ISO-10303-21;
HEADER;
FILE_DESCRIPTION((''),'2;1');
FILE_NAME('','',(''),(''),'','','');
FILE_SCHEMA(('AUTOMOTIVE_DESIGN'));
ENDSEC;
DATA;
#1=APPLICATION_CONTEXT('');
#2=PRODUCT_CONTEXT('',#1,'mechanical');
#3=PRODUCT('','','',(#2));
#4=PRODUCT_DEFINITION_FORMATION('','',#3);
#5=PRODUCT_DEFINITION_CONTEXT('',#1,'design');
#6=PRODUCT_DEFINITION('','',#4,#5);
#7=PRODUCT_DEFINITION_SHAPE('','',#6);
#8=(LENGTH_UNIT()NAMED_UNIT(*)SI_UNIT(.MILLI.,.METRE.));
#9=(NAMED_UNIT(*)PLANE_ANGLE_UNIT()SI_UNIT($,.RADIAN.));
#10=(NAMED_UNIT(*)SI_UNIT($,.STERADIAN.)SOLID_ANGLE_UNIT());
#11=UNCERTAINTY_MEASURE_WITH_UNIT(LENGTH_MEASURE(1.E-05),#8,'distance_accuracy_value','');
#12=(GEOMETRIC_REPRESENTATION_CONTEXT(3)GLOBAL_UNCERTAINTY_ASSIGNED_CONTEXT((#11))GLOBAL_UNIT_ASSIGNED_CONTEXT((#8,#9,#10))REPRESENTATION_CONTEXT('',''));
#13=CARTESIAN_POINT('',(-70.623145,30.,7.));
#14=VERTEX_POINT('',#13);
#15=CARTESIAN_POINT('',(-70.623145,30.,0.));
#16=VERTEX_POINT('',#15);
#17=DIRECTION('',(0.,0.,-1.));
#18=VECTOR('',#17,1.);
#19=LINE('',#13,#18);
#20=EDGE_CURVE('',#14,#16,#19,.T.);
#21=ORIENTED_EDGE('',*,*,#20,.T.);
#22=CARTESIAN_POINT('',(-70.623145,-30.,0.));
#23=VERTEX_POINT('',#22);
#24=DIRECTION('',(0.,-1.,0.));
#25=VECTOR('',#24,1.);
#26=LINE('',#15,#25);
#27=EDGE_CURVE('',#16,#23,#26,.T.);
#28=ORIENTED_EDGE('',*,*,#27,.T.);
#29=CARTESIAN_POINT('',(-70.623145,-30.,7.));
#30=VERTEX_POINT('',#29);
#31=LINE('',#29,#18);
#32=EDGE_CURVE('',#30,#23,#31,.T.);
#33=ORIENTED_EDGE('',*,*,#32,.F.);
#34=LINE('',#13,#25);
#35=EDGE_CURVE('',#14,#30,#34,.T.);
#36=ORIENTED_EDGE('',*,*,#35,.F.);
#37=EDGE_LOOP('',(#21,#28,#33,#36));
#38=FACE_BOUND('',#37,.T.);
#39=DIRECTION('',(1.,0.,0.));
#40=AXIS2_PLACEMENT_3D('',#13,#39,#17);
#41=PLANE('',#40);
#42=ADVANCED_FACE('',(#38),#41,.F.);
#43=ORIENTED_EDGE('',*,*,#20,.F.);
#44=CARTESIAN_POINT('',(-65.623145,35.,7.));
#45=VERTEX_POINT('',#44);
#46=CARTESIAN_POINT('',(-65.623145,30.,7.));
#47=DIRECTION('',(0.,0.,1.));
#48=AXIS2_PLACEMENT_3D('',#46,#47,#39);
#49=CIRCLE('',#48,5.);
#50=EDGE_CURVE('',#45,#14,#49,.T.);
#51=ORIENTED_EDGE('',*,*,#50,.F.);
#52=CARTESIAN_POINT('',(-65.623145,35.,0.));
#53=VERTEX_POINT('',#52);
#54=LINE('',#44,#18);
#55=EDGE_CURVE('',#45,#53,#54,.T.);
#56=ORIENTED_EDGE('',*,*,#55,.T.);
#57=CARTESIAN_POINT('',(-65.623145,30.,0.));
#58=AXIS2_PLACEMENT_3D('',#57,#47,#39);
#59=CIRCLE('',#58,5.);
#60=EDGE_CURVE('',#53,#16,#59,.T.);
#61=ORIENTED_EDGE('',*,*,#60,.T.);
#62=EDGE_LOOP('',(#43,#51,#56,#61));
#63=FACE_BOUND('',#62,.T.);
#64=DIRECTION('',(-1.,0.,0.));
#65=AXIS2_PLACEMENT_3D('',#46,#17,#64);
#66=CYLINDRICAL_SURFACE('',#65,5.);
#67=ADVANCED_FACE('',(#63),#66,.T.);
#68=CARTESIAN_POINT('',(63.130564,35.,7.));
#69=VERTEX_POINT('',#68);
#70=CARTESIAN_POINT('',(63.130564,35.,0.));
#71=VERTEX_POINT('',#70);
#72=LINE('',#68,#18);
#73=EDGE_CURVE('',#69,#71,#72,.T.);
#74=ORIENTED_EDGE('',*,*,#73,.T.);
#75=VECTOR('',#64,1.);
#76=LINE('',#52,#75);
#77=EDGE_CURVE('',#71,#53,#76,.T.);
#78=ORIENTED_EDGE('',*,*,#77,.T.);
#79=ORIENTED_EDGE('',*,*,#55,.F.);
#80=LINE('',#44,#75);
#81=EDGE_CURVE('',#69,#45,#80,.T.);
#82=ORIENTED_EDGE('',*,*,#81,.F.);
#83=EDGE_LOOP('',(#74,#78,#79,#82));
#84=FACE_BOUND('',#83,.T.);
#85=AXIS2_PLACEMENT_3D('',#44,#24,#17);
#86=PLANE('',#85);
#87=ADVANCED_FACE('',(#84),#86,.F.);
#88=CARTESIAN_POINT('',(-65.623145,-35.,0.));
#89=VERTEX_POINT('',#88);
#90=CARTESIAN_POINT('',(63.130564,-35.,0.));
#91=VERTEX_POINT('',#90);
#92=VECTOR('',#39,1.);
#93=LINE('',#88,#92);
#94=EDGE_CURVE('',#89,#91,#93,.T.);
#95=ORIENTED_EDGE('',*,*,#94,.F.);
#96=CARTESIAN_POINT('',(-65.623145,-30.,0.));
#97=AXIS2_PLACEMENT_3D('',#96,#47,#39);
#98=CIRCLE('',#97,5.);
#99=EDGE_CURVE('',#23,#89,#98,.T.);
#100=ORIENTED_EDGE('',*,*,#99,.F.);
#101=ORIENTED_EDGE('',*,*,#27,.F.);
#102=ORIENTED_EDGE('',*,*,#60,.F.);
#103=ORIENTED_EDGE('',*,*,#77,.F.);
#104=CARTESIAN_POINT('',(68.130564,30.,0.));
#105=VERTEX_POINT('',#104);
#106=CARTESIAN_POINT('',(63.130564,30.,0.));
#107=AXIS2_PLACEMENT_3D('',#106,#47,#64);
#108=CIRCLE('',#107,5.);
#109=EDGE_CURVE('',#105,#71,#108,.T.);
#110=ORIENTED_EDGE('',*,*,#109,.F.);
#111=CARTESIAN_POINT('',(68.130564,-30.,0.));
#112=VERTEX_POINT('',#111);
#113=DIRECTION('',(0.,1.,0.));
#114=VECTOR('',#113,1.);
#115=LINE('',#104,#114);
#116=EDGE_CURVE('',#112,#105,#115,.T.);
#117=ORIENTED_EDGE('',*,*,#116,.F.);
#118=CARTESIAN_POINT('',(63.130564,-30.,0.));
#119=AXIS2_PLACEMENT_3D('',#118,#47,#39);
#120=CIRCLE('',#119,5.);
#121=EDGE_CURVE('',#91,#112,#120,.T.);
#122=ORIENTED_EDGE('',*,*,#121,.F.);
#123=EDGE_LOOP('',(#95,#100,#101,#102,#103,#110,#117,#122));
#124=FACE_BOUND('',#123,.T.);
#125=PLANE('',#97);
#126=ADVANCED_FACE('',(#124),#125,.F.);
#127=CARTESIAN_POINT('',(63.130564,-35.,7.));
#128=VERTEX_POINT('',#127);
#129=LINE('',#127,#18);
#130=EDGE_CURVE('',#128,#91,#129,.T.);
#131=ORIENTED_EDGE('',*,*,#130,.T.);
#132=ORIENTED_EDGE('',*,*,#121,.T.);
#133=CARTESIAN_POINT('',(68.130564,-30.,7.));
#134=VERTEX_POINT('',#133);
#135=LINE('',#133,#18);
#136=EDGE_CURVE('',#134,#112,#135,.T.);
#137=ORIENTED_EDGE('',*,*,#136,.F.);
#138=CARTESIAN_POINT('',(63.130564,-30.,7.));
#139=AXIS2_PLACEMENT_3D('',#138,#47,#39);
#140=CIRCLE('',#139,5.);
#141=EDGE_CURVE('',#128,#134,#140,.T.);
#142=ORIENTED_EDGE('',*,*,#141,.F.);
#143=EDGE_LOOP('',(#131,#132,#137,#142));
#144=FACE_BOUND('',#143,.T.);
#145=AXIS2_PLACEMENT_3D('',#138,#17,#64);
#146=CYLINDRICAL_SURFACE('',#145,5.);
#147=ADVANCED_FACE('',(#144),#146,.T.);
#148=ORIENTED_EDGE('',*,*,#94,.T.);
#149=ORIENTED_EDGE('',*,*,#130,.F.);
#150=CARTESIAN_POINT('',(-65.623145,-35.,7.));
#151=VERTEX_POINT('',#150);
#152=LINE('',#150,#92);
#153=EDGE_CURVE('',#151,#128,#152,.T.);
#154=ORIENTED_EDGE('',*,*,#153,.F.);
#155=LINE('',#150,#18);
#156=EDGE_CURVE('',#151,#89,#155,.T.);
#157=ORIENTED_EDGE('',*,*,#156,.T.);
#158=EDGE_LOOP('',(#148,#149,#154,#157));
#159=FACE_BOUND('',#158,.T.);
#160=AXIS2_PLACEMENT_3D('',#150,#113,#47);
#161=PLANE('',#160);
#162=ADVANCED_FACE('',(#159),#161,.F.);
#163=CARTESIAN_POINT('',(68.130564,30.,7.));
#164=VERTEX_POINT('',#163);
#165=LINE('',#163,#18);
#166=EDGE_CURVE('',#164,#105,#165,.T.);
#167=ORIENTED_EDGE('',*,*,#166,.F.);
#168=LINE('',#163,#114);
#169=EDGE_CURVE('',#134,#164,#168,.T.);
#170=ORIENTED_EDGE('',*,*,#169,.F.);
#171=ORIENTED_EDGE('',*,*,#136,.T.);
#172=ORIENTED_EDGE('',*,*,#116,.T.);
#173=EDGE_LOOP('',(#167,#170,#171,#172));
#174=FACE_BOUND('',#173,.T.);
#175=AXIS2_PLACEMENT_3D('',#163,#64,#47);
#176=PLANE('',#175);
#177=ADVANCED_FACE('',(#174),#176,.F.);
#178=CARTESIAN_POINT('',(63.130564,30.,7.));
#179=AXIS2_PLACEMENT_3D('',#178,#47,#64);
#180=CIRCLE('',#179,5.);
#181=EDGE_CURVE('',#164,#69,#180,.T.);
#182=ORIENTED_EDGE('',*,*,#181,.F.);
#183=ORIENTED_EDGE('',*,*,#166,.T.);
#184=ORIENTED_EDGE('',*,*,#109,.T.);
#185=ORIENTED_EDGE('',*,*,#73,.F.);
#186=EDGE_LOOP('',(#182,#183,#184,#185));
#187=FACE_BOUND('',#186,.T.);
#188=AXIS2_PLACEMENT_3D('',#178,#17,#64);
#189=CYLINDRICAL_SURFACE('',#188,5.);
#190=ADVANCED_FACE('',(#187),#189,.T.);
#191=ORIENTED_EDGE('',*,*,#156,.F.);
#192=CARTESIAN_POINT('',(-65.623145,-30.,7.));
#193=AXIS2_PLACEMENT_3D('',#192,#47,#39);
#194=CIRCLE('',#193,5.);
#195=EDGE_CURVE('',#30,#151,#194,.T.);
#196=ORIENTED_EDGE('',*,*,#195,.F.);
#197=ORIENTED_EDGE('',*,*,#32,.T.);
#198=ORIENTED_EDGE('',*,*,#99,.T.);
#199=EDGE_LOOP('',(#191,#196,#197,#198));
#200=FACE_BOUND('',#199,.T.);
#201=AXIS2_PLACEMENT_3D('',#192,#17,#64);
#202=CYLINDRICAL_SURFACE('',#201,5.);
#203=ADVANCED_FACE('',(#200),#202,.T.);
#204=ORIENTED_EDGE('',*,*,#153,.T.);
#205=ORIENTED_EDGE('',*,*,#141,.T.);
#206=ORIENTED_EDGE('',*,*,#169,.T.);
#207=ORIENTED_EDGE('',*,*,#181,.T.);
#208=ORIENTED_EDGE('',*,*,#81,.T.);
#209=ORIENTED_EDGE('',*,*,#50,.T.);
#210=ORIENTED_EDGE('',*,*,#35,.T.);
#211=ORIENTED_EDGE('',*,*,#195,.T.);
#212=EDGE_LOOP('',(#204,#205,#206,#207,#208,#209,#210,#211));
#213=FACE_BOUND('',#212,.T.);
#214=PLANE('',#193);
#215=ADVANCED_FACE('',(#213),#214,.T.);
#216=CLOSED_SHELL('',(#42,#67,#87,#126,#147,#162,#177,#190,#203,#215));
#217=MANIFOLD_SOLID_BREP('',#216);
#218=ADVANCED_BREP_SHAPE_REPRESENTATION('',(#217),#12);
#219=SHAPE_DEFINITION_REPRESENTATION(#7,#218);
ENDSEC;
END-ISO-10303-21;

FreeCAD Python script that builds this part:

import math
import FreeCAD as App
import Part
import Sketcher
from FreeCAD import Vector

doc = App.newDocument("Part")
body = doc.addObject("PartDesign::Body", "Body")

# Sketch on XY plane
sketch1 = body.newObject("Sketcher::SketchObject", "Sketch")
sketch1.AttachmentSupport = (doc.getObject("XY_Plane"), [""])
sketch1.MapMode = "FlatFace"
sketch1.addGeometry(Part.LineSegment(Vector(63, 35, 0), Vector(-66, 35, 0)), False)
sketch1.addGeometry(Part.ArcOfCircle(Part.Circle(Vector(-66, 30, 0), Vector(0, 0, 1), 5), math.radians(90), math.radians(180)), False)
sketch1.addGeometry(Part.LineSegment(Vector(-71, 30, 0), Vector(-71, -30, 0)), False)
sketch1.addGeometry(Part.ArcOfCircle(Part.Circle(Vector(-66, -30, 0), Vector(0, 0, 1), 5), math.radians(180), math.radians(270)), False)
sketch1.addGeometry(Part.LineSegment(Vector(-66, -35, 0), Vector(63, -35, 0)), False)
sketch1.addGeometry(Part.ArcOfCircle(Part.Circle(Vector(63, -30, 0), Vector(0, 0, 1), 5), math.radians(-90), math.radians(0)), False)
sketch1.addGeometry(Part.LineSegment(Vector(68, -30, 0), Vector(68, 30, 0)), False)
sketch1.addGeometry(Part.ArcOfCircle(Part.Circle(Vector(63, 30, 0), Vector(0, 0, 1), 5), math.radians(0), math.radians(90)), False)
sketch1.addConstraint(Sketcher.Constraint("Tangent", 0, 2, 1, 1))
sketch1.addConstraint(Sketcher.Constraint("Tangent", 1, 2, 2, 1))
sketch1.addConstraint(Sketcher.Constraint("Tangent", 2, 2, 3, 1))
sketch1.addConstraint(Sketcher.Constraint("Tangent", 3, 2, 4, 1))
sketch1.addConstraint(Sketcher.Constraint("Tangent", 4, 2, 5, 1))
sketch1.addConstraint(Sketcher.Constraint("Tangent", 5, 2, 6, 1))
sketch1.addConstraint(Sketcher.Constraint("Tangent", 6, 2, 7, 1))
sketch1.addConstraint(Sketcher.Constraint("Tangent", 7, 2, 0, 1))
sketch1.addConstraint(Sketcher.Constraint("Horizontal", 0))
sketch1.addConstraint(Sketcher.Constraint("Vertical", 2))
sketch1.addConstraint(Sketcher.Constraint("Horizontal", 4))
sketch1.addConstraint(Sketcher.Constraint("Vertical", 6))
sketch1.addConstraint(Sketcher.Constraint("Equal", 1, 3))
sketch1.addConstraint(Sketcher.Constraint("Equal", 3, 5))
sketch1.addConstraint(Sketcher.Constraint("Equal", 5, 7))
sketch1.addConstraint(Sketcher.Constraint("Radius", 1, 5.0))
sketch1.addConstraint(Sketcher.Constraint("DistanceY", 2, 2, 2, 1, 60.0))
sketch1.addConstraint(Sketcher.Constraint("DistanceY", -1, 1, 1, 3, 30.0))
sketch1.addConstraint(Sketcher.Constraint("DistanceX", 0, 2, 0, 1, 128.753709))
sketch1.addConstraint(Sketcher.Constraint("DistanceX", 1, 3, -1, 1, 65.623145))
pad1 = body.newObject("PartDesign::Pad", "Pad")
pad1.Profile = sketch1
pad1.Length = 7

doc.recompute()
